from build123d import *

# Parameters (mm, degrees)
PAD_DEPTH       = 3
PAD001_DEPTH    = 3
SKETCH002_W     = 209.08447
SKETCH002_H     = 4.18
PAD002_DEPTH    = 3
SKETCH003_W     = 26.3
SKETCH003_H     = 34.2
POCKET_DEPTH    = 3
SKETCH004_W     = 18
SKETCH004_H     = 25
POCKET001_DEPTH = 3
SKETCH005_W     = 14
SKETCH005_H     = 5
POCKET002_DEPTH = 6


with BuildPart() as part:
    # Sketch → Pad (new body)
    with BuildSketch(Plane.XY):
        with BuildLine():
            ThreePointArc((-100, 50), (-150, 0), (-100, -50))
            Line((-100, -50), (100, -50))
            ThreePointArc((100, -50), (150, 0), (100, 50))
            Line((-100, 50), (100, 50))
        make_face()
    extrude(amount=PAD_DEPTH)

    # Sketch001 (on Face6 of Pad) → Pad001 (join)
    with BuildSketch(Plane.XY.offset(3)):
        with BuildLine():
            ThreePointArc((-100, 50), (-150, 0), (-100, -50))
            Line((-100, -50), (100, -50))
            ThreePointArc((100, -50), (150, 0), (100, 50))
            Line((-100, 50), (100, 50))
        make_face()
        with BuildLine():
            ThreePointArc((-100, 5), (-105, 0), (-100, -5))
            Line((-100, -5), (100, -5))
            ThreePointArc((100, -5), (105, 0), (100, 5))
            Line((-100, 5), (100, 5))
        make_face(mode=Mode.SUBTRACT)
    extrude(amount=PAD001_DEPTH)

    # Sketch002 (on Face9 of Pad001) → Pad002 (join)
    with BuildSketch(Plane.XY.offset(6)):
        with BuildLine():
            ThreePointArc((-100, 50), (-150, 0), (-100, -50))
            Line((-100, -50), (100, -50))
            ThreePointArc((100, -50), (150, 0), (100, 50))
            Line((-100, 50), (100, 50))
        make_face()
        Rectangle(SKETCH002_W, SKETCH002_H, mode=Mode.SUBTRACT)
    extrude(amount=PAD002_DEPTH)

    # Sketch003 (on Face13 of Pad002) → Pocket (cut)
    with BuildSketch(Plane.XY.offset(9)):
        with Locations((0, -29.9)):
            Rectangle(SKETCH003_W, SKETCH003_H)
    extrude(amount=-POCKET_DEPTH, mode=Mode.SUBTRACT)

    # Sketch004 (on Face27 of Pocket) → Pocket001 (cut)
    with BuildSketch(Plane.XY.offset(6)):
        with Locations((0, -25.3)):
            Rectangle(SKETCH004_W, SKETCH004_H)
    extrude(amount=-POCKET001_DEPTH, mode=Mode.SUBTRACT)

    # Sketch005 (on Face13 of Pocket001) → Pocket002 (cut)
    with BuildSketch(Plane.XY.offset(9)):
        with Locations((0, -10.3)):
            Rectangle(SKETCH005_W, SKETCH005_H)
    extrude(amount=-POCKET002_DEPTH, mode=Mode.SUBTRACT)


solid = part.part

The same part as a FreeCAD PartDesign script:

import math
import FreeCAD as App
import Part
import Sketcher
Q = App.Units.Quantity

doc = App.newDocument("Part")
body = doc.addObject("PartDesign::Body", "Body")

sketch1 = body.newObject("Sketcher::SketchObject", "Sketch")
sketch1.AttachmentSupport = (doc.getObject("XY_Plane"), [""])
sketch1.MapMode = "FlatFace"
sketch1.addGeometry([
    Part.ArcOfCircle(Part.Circle(App.Vector(-100, 0, 0), App.Vector(0, 0, 1), 50), math.radians(90), math.radians(270)),
    Part.LineSegment(App.Vector(-100, -50, 0), App.Vector(100, -50, 0)),
    Part.ArcOfCircle(Part.Circle(App.Vector(100, 0, 0), App.Vector(0, 0, 1), 50), math.radians(-90), math.radians(90)),
    Part.LineSegment(App.Vector(100, 50, 0), App.Vector(-100, 50, 0)),
], False)
sketch1.addConstraint([
    Sketcher.Constraint("Tangent", 0, 2, 1, 1),
    Sketcher.Constraint("Tangent", 1, 2, 2, 1),
    Sketcher.Constraint("Tangent", 2, 2, 3, 1),
    Sketcher.Constraint("Tangent", 3, 2, 0, 1),
    Sketcher.Constraint("Horizontal", 1),
    Sketcher.Constraint("Horizontal", 3),
    Sketcher.Constraint("Symmetric", 0, 3, 2, 3, -1, 1),
    Sketcher.Constraint("Radius", 0, Q("50 mm")),
    Sketcher.Constraint("DistanceX", 1, 1, 1, 2, Q("200 mm")),
])
pad1 = body.newObject("PartDesign::Pad", "Pad")
pad1.Profile = sketch1
pad1.Length = 3

sketch2 = body.newObject("Sketcher::SketchObject", "Sketch001")
sketch2.AttachmentSupport = (doc.getObject("XY_Plane"), [""])
sketch2.MapMode = "FlatFace"
sketch2.AttachmentOffset = App.Placement(App.Vector(0, 0, 3), App.Rotation())
sketch2.addGeometry([
    Part.ArcOfCircle(Part.Circle(App.Vector(-100, 0, 0), App.Vector(0, 0, 1), 50), math.radians(90), math.radians(270)),
    Part.LineSegment(App.Vector(-100, -50, 0), App.Vector(100, -50, 0)),
    Part.ArcOfCircle(Part.Circle(App.Vector(100, 0, 0), App.Vector(0, 0, 1), 50), math.radians(-90), math.radians(90)),
    Part.LineSegment(App.Vector(100, 50, 0), App.Vector(-100, 50, 0)),
    Part.ArcOfCircle(Part.Circle(App.Vector(-100, 0, 0), App.Vector(0, 0, 1), 5), math.radians(90), math.radians(270)),
    Part.LineSegment(App.Vector(-100, 5, 0), App.Vector(100, 5, 0)),
    Part.ArcOfCircle(Part.Circle(App.Vector(100, 0, 0), App.Vector(0, 0, 1), 5), math.radians(-90), math.radians(90)),
    Part.LineSegment(App.Vector(100, -5, 0), App.Vector(-100, -5, 0)),
], False)
sketch2.addConstraint([
    Sketcher.Constraint("Tangent", 0, 2, 1, 1),
    Sketcher.Constraint("Tangent", 1, 2, 2, 1),
    Sketcher.Constraint("Tangent", 2, 2, 3, 1),
    Sketcher.Constraint("Tangent", 3, 2, 0, 1),
    Sketcher.Constraint("Tangent", 4, 1, 5, 1),
    Sketcher.Constraint("Tangent", 5, 2, 6, 2),
    Sketcher.Constraint("Tangent", 6, 1, 7, 1),
    Sketcher.Constraint("Tangent", 7, 2, 4, 2),
    Sketcher.Constraint("Horizontal", 1),
    Sketcher.Constraint("Horizontal", 3),
    Sketcher.Constraint("Horizontal", 5),
    Sketcher.Constraint("Horizontal", 7),
    Sketcher.Constraint("Coincident", 4, 3, 0, 3),
    Sketcher.Constraint("Symmetric", 0, 3, 2, 3, -1, 1),
    Sketcher.Constraint("Vertical", 6, 3, 1, 2),
    Sketcher.Constraint("Radius", 0, Q("50 mm")),
    Sketcher.Constraint("Radius", 4, Q("5 mm")),
    Sketcher.Constraint("DistanceX", 1, 1, 1, 2, Q("200 mm")),
])
pad2 = body.newObject("PartDesign::Pad", "Pad001")
pad2.Profile = sketch2
pad2.Length = 3

sketch3 = body.newObject("Sketcher::SketchObject", "Sketch002")
sketch3.AttachmentSupport = (doc.getObject("XY_Plane"), [""])
sketch3.MapMode = "FlatFace"
sketch3.AttachmentOffset = App.Placement(App.Vector(0, 0, 6), App.Rotation())
sketch3.addGeometry([
    Part.ArcOfCircle(Part.Circle(App.Vector(-100, 0, 0), App.Vector(0, 0, 1), 50), math.radians(90), math.radians(270)),
    Part.LineSegment(App.Vector(-100, -50, 0), App.Vector(100, -50, 0)),
    Part.ArcOfCircle(Part.Circle(App.Vector(100, 0, 0), App.Vector(0, 0, 1), 50), math.radians(-90), math.radians(90)),
    Part.LineSegment(App.Vector(100, 50, 0), App.Vector(-100, 50, 0)),
    Part.LineSegment(App.Vector(104.5, -2.1, 0), App.Vector(-104.5, -2.1, 0)),
    Part.LineSegment(App.Vector(-104.5, -2.1, 0), App.Vector(-104.5, 2.1, 0)),
    Part.LineSegment(App.Vector(-104.5, 2.1, 0), App.Vector(104.5, 2.1, 0)),
    Part.LineSegment(App.Vector(104.5, 2.1, 0), App.Vector(104.5, -2.1, 0)),
], False)
sketch3.addConstraint([
    Sketcher.Constraint("Tangent", 0, 2, 1, 1),
    Sketcher.Constraint("Tangent", 1, 2, 2, 1),
    Sketcher.Constraint("Tangent", 2, 2, 3, 1),
    Sketcher.Constraint("Tangent", 3, 2, 0, 1),
    Sketcher.Constraint("Coincident", 4, 2, 5, 1),
    Sketcher.Constraint("Coincident", 5, 2, 6, 1),
    Sketcher.Constraint("Coincident", 6, 2, 7, 1),
    Sketcher.Constraint("Coincident", 7, 2, 4, 1),
    Sketcher.Constraint("Horizontal", 1),
    Sketcher.Constraint("Horizontal", 3),
    Sketcher.Constraint("Horizontal", 4),
    Sketcher.Constraint("Vertical", 5),
    Sketcher.Constraint("Horizontal", 6),
    Sketcher.Constraint("Vertical", 7),
    Sketcher.Constraint("Symmetric", 0, 3, 2, 3, -1, 1),
    Sketcher.Constraint("Symmetric", 4, 2, 6, 2, -1, 1),
    Sketcher.Constraint("Radius", 0, Q("50 mm")),
    Sketcher.Constraint("DistanceX", 1, 1, 1, 2, Q("200 mm")),
    Sketcher.Constraint("DistanceY", 5, 1, 5, 2, Q("4.18 mm")),
    Sketcher.Constraint("DistanceX", 4, 2, 4, 1, Q("209.08447 mm")),
])
pad3 = body.newObject("PartDesign::Pad", "Pad002")
pad3.Profile = sketch3
pad3.Length = 3

sketch4 = body.newObject("Sketcher::SketchObject", "Sketch003")
sketch4.AttachmentSupport = (doc.getObject("XY_Plane"), [""])
sketch4.MapMode = "FlatFace"
sketch4.AttachmentOffset = App.Placement(App.Vector(0, 0, 9), App.Rotation())
sketch4.addGeometry([
    Part.LineSegment(App.Vector(-13, -13, 0), App.Vector(-13, -47, 0)),
    Part.LineSegment(App.Vector(-13, -47, 0), App.Vector(13, -47, 0)),
    Part.LineSegment(App.Vector(13, -47, 0), App.Vector(13, -13, 0)),
    Part.LineSegment(App.Vector(13, -13, 0), App.Vector(-13, -13, 0)),
], False)
sketch4.addConstraint([
    Sketcher.Constraint("Coincident", 0, 2, 1, 1),
    Sketcher.Constraint("Coincident", 1, 2, 2, 1),
    Sketcher.Constraint("Coincident", 2, 2, 3, 1),
    Sketcher.Constraint("Coincident", 3, 2, 0, 1),
    Sketcher.Constraint("Vertical", 0),
    Sketcher.Constraint("Horizontal", 1),
    Sketcher.Constraint("Vertical", 2),
    Sketcher.Constraint("Horizontal", 3),
    Sketcher.Constraint("DistanceX", 1, 1, 1, 2, Q("26.3 mm")),
    Sketcher.Constraint("DistanceY", 0, 2, 0, 1, Q("34.2 mm")),
    Sketcher.Constraint("DistanceY", 0, 2, -1, 1, Q("47 mm")),
    Sketcher.Constraint("DistanceX", 0, 2, -1, 1, Q("13.15 mm")),
])
pocket1 = body.newObject("PartDesign::Pocket", "Pocket")
pocket1.Profile = sketch4
pocket1.Length = 3

sketch5 = body.newObject("Sketcher::SketchObject", "Sketch004")
sketch5.AttachmentSupport = (doc.getObject("XY_Plane"), [""])
sketch5.MapMode = "FlatFace"
sketch5.AttachmentOffset = App.Placement(App.Vector(0, 0, 6), App.Rotation())
sketch5.addGeometry([
    Part.LineSegment(App.Vector(-9, -13, 0), App.Vector(-9, -38, 0)),
    Part.LineSegment(App.Vector(-9, -38, 0), App.Vector(9, -38, 0)),
    Part.LineSegment(App.Vector(9, -38, 0), App.Vector(9, -13, 0)),
    Part.LineSegment(App.Vector(9, -13, 0), App.Vector(-9, -13, 0)),
], False)
sketch5.addConstraint([
    Sketcher.Constraint("Coincident", 0, 2, 1, 1),
    Sketcher.Constraint("Coincident", 1, 2, 2, 1),
    Sketcher.Constraint("Coincident", 2, 2, 3, 1),
    Sketcher.Constraint("Coincident", 3, 2, 0, 1),
    Sketcher.Constraint("Vertical", 0),
    Sketcher.Constraint("Horizontal", 1),
    Sketcher.Constraint("Vertical", 2),
    Sketcher.Constraint("Horizontal", 3),
    Sketcher.Constraint("DistanceX", 1, 1, 1, 2, Q("18 mm")),
    Sketcher.Constraint("DistanceY", 0, 2, 0, 1, Q("25 mm")),
    Sketcher.Constraint("DistanceX", 0, 2, -1, 1, Q("9 mm")),
    Sketcher.Constraint("DistanceY", 0, 2, -1, 1, Q("37.8 mm")),
])
pocket2 = body.newObject("PartDesign::Pocket", "Pocket001")
pocket2.Profile = sketch5
pocket2.Length = 3

sketch6 = body.newObject("Sketcher::SketchObject", "Sketch005")
sketch6.AttachmentSupport = (doc.getObject("XY_Plane"), [""])
sketch6.MapMode = "FlatFace"
sketch6.AttachmentOffset = App.Placement(App.Vector(0, 0, 9), App.Rotation())
sketch6.addGeometry([
    Part.LineSegment(App.Vector(-7, -8, 0), App.Vector(-7, -13, 0)),
    Part.LineSegment(App.Vector(-7, -13, 0), App.Vector(7, -13, 0)),
    Part.LineSegment(App.Vector(7, -13, 0), App.Vector(7, -8, 0)),
    Part.LineSegment(App.Vector(7, -8, 0), App.Vector(-7, -8, 0)),
], False)
sketch6.addConstraint([
    Sketcher.Constraint("Coincident", 0, 2, 1, 1),
    Sketcher.Constraint("Coincident", 1, 2, 2, 1),
    Sketcher.Constraint("Coincident", 2, 2, 3, 1),
    Sketcher.Constraint("Coincident", 3, 2, 0, 1),
    Sketcher.Constraint("Vertical", 0),
    Sketcher.Constraint("Horizontal", 1),
    Sketcher.Constraint("Vertical", 2),
    Sketcher.Constraint("Horizontal", 3),
    Sketcher.Constraint("DistanceX", 1, 1, 1, 2, Q("14 mm")),
    Sketcher.Constraint("DistanceY", 0, 2, 0, 1, Q("5 mm")),
    Sketcher.Constraint("DistanceX", 0, 2, -1, 1, Q("7 mm")),
    Sketcher.Constraint("DistanceY", 0, 2, -1, 1, Q("12.8 mm")),
])
pocket3 = body.newObject("PartDesign::Pocket", "Pocket002")
pocket3.Profile = sketch6
pocket3.Length = 6

doc.recompute()
